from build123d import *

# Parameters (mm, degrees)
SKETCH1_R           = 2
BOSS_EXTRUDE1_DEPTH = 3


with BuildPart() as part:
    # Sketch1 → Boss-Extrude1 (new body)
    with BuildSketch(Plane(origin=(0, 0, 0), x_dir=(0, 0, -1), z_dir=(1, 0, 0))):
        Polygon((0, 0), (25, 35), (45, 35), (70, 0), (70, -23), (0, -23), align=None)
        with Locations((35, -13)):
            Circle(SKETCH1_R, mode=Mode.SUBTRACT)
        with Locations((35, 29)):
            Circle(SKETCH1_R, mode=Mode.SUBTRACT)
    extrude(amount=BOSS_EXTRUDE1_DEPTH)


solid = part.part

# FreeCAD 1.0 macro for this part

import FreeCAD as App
import Part
import Sketcher
from FreeCAD import Vector
Q = App.Units.Quantity

doc = App.newDocument("Part")
body = doc.addObject("PartDesign::Body", "Body")

sketch1 = body.newObject("Sketcher::SketchObject", "Sketch")
sketch1.AttachmentSupport = (doc.getObject("YZ_Plane"), [""])
sketch1.MapMode = "FlatFace"
sketch1.addGeometry(Part.LineSegment(Vector(35, -25, 0), Vector(0, 0, 0)), False)
sketch1.addGeometry(Part.LineSegment(Vector(0, 0, 0), Vector(-23, 0, 0)), False)
sketch1.addGeometry(Part.LineSegment(Vector(-23, 0, 0), Vector(-23, -70, 0)), False)
sketch1.addGeometry(Part.LineSegment(Vector(-23, -70, 0), Vector(0, -70, 0)), False)
sketch1.addGeometry(Part.LineSegment(Vector(0, -70, 0), Vector(35, -45, 0)), False)
sketch1.addGeometry(Part.LineSegment(Vector(35, -45, 0), Vector(35, -25, 0)), False)
sketch1.addGeometry(Part.Circle(Vector(-13, -35, 0), Vector(0, 0, 1), 2), False)
sketch1.addGeometry(Part.Circle(Vector(29, -35, 0), Vector(0, 0, 1), 2), False)
sketch1.addConstraint(Sketcher.Constraint("Coincident", 0, 2, 1, 1))
sketch1.addConstraint(Sketcher.Constraint("Coincident", 1, 2, 2, 1))
sketch1.addConstraint(Sketcher.Constraint("Coincident", 2, 2, 3, 1))
sketch1.addConstraint(Sketcher.Constraint("Coincident", 3, 2, 4, 1))
sketch1.addConstraint(Sketcher.Constraint("Coincident", 4, 2, 5, 1))
sketch1.addConstraint(Sketcher.Constraint("Coincident", 5, 2, 0, 1))
sketch1.addConstraint(Sketcher.Constraint("Horizontal", 1))
sketch1.addConstraint(Sketcher.Constraint("Vertical", 2))
sketch1.addConstraint(Sketcher.Constraint("Horizontal", 3))
sketch1.addConstraint(Sketcher.Constraint("Vertical", 5))
sketch1.addConstraint(Sketcher.Constraint("Coincident", 0, 2, -1, 1))
sketch1.addConstraint(Sketcher.Constraint("Equal", 6, 7))
sketch1.addConstraint(Sketcher.Constraint("PointOnObject", 3, 2, -2))
sketch1.addConstraint(Sketcher.Constraint("Horizontal", 6, 3, 7, 3))
sketch1.addConstraint(Sketcher.Constraint("Equal", 0, 4))
sketch1.addConstraint(Sketcher.Constraint("Diameter", 6, Q("4 mm")))
sketch1.addConstraint(Sketcher.Constraint("DistanceX", 1, 2, 1, 1, Q("23 mm")))
sketch1.addConstraint(Sketcher.Constraint("DistanceY", 2, 2, 2, 1, Q("70 mm")))
sketch1.addConstraint(Sketcher.Constraint("DistanceY", 5, 1, 5, 2, Q("20 mm")))
sketch1.addConstraint(Sketcher.Constraint("DistanceX", 6, 3, -1, 1, Q("13 mm")))
sketch1.addConstraint(Sketcher.Constraint("DistanceY", 6, 3, -1, 1, Q("35 mm")))
sketch1.addConstraint(Sketcher.Constraint("DistanceX", -1, 1, 7, 3, Q("29 mm")))
sketch1.addConstraint(Sketcher.Constraint("DistanceX", -1, 1, 4, 2, Q("35 mm")))
pad1 = body.newObject("PartDesign::Pad", "Pad")
pad1.Profile = sketch1
pad1.Length = 3

doc.recompute()
